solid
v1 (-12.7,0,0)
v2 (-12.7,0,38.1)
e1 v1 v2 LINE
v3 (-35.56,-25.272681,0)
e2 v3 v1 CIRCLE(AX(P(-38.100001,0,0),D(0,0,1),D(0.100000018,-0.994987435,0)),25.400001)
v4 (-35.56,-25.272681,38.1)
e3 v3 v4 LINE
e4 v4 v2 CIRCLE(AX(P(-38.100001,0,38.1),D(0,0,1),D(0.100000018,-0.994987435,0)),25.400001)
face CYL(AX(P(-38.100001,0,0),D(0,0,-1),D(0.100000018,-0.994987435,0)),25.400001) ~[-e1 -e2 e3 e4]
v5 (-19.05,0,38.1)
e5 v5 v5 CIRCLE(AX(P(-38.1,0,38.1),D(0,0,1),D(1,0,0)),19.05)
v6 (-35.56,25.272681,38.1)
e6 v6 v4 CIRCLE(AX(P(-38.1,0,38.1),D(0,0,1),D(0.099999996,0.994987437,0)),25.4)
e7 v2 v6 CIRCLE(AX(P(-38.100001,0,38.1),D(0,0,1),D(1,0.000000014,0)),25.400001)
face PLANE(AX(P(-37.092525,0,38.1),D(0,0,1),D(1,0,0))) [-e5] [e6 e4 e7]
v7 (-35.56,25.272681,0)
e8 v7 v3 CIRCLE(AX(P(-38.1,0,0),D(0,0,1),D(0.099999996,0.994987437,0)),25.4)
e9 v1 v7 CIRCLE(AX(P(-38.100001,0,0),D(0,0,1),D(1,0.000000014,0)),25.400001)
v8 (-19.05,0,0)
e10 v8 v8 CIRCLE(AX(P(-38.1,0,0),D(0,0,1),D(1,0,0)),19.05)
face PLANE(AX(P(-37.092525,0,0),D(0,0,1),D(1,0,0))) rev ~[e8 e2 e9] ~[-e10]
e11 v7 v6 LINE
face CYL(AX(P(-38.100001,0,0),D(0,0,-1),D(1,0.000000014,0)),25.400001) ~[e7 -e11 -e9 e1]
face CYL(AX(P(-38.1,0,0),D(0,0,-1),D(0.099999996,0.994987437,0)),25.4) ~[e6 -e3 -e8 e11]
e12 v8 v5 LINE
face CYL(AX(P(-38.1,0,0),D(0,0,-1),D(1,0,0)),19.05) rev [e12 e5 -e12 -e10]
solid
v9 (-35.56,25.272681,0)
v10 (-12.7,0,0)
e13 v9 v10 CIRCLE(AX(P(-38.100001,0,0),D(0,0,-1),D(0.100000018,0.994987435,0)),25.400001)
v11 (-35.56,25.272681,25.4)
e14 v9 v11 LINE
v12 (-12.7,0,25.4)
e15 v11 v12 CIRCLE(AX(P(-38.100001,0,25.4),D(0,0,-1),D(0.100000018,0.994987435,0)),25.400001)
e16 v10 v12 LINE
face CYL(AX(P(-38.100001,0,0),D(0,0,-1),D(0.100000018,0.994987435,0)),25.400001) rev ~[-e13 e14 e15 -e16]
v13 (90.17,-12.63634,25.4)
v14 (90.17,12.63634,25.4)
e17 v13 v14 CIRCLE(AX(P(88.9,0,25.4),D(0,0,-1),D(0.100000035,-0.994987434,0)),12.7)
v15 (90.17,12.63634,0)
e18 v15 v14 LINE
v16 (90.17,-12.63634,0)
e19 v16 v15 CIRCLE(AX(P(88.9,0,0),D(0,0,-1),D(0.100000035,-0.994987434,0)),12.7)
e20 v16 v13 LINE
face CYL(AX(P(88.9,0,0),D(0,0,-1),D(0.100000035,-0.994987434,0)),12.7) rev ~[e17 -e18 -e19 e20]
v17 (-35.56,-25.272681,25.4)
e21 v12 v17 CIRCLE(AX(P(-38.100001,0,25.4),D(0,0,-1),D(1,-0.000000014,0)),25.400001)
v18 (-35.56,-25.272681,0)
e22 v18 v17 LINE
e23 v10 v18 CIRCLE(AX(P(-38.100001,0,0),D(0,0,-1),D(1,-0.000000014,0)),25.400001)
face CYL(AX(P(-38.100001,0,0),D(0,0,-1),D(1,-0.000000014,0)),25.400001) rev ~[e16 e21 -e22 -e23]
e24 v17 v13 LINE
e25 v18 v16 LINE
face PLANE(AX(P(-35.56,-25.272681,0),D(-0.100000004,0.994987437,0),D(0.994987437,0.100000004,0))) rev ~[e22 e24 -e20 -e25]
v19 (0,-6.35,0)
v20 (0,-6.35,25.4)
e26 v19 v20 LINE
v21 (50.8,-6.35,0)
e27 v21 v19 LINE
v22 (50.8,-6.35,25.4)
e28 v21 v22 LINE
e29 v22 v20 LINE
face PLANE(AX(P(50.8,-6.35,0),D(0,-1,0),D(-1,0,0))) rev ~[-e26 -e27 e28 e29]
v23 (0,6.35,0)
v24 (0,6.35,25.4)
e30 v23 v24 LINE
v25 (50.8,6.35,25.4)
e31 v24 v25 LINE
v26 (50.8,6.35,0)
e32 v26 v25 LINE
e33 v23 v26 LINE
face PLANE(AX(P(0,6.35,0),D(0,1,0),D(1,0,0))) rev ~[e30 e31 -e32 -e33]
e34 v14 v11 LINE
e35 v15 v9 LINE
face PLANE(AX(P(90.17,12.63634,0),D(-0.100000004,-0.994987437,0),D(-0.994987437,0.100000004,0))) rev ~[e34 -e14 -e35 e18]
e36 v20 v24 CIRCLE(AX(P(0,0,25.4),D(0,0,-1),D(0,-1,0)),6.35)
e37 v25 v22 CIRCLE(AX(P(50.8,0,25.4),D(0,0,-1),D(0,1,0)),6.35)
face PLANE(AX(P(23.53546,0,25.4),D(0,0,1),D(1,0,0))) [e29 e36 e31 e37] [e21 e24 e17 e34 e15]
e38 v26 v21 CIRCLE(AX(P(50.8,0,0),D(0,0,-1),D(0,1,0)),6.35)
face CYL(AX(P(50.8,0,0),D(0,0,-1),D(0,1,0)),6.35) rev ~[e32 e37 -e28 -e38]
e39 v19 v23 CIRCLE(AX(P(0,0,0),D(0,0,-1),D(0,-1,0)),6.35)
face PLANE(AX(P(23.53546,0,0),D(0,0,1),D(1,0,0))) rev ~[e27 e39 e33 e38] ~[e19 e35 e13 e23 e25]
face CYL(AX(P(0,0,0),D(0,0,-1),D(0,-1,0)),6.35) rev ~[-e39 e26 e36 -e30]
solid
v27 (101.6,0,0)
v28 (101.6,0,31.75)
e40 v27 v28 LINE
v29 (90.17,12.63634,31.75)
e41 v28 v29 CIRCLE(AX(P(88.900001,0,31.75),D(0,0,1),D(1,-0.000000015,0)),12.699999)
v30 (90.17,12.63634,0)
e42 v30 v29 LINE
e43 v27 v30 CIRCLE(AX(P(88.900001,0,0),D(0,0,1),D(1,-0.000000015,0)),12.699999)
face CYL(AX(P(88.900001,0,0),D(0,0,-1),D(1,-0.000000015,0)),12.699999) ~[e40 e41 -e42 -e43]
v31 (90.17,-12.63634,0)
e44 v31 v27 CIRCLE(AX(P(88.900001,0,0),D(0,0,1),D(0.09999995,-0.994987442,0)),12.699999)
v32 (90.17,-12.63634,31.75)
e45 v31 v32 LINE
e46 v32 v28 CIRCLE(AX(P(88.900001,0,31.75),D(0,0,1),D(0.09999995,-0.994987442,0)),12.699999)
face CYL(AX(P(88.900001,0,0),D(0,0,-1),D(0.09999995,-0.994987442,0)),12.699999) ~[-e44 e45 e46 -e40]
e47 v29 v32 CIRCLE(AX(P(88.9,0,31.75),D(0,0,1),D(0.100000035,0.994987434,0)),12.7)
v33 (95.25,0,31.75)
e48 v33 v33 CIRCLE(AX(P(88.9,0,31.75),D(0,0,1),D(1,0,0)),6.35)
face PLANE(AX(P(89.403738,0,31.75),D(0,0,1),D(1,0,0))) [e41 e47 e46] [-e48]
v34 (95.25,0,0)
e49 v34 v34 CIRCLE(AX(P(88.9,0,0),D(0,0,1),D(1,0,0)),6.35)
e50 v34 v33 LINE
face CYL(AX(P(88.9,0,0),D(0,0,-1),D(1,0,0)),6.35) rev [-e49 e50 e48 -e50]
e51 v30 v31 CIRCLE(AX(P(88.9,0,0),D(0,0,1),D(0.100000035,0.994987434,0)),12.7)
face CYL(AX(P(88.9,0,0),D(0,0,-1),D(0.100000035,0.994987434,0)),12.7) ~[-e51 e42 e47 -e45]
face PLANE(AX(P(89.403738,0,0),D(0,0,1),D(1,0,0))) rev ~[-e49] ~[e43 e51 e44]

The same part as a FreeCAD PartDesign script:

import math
import FreeCAD as App
import Part
import Sketcher

V = App.Vector
Q = App.Units.Quantity

doc = App.newDocument("Part")
params = doc.addObject("Spreadsheet::Sheet", "Params")
for row, (alias, value) in enumerate([
    ("sketch1_radius", "1 in"),
    ("sketch1_diameter", "1.5 in"),
    ("pad1_length", "1.5 in"),
    ("sketch2_diameter", "0.5 in"),
    ("sketch2_radius", "0.5 in"),
    ("pad2_length", "1.25 in"),
    ("sketch3_radius", "1 in"),
    ("sketch3_radius2", "0.5 in"),
    ("sketch3_width", "2 in"),
    ("sketch3_radius3", "0.25 in"),
    ("pad3_length", "1 in"),
], start=1):
    params.set(f"A{row}", alias)
    params.set(f"B{row}", "=" + value)
    params.setAlias(f"B{row}", alias)

body = doc.addObject("PartDesign::Body", "Body")

# Sketch on XY plane
sketch1 = doc.addObject("Sketcher::SketchObject", "Sketch")
body.addObject(sketch1)
sketch1.AttachmentSupport = (doc.XY_Plane, [""])
sketch1.MapMode = "FlatFace"
sketch1.addGeometry(Part.ArcOfCircle(Part.Circle(V(-38, 0, 0), V(0, 0, 1), 25), math.radians(-84), math.radians(0)), False)
sketch1.addGeometry(Part.ArcOfCircle(Part.Circle(V(-38, 0, 0), V(0, 0, 1), 25), math.radians(0), math.radians(84)), False)
sketch1.addGeometry(Part.ArcOfCircle(Part.Circle(V(-38, 0, 0), V(0, 0, 1), 25), math.radians(84), math.radians(276)), False)
sketch1.addGeometry(Part.Circle(V(-38, 0, 0), V(0, 0, 1), 19), False)
sketch1.addConstraint(Sketcher.Constraint("Tangent", 0, 2, 1, 1))
sketch1.addConstraint(Sketcher.Constraint("Tangent", 1, 2, 2, 1))
sketch1.addConstraint(Sketcher.Constraint("Tangent", 2, 2, 0, 1))
sketch1.addConstraint(Sketcher.Constraint("Coincident", 3, 3, 0, 3))
sketch1.addConstraint(Sketcher.Constraint("Symmetric", 1, 2, 2, 2, -1))
sketch1.addConstraint(Sketcher.Constraint("PointOnObject", 0, 2, -1))
sketch1.addConstraint(Sketcher.Constraint("Radius", 0, Q("1 in")))
sketch1.addConstraint(Sketcher.Constraint("Diameter", 3, Q("1.5 in")))
sketch1.addConstraint(Sketcher.Constraint("DistanceX", 0, 3, -1, 1, Q("1.5 in")))
sketch1.addConstraint(Sketcher.Constraint("DistanceX", 1, 2, -1, 1, Q("1.4 in")))
sketch1.setExpression("Constraints[6]", "Params.sketch1_radius")
sketch1.setExpression("Constraints[7]", "Params.sketch1_diameter")
pad1 = doc.addObject("PartDesign::Pad", "Pad")
body.addObject(pad1)
pad1.Profile = sketch1
pad1.setExpression("Length", "Params.pad1_length")
body2 = doc.addObject("PartDesign::Body", "Body001")

# Sketch on XY plane
sketch2 = doc.addObject("Sketcher::SketchObject", "Sketch001")
body2.addObject(sketch2)
sketch2.AttachmentSupport = (doc.getObject("XY_Plane001"), [""])
sketch2.MapMode = "FlatFace"
sketch2.addGeometry(Part.ArcOfCircle(Part.Circle(V(89, 0, 0), V(0, 0, 1), 13), math.radians(0), math.radians(84)), False)
sketch2.addGeometry(Part.ArcOfCircle(Part.Circle(V(89, 0, 0), V(0, 0, 1), 13), math.radians(84), math.radians(276)), False)
sketch2.addGeometry(Part.ArcOfCircle(Part.Circle(V(89, 0, 0), V(0, 0, 1), 13), math.radians(-84), math.radians(0)), False)
sketch2.addGeometry(Part.Circle(V(89, 0, 0), V(0, 0, 1), 6), False)
sketch2.addConstraint(Sketcher.Constraint("Tangent", 0, 2, 1, 1))
sketch2.addConstraint(Sketcher.Constraint("Tangent", 1, 2, 2, 1))
sketch2.addConstraint(Sketcher.Constraint("Tangent", 2, 2, 0, 1))
sketch2.addConstraint(Sketcher.Constraint("Coincident", 3, 3, 0, 3))
sketch2.addConstraint(Sketcher.Constraint("Symmetric", 0, 2, 1, 2, -1))
sketch2.addConstraint(Sketcher.Constraint("PointOnObject", 2, 2, -1))
sketch2.addConstraint(Sketcher.Constraint("Diameter", 3, Q("0.5 in")))
sketch2.addConstraint(Sketcher.Constraint("Radius", 0, Q("0.5 in")))
sketch2.addConstraint(Sketcher.Constraint("DistanceX", -1, 1, 2, 2, Q("4 in")))
sketch2.addConstraint(Sketcher.Constraint("DistanceX", -1, 1, 0, 2, Q("3.55 in")))
sketch2.setExpression("Constraints[6]", "Params.sketch2_diameter")
sketch2.setExpression("Constraints[7]", "Params.sketch2_radius")
pad2 = doc.addObject("PartDesign::Pad", "Pad001")
body2.addObject(pad2)
pad2.Profile = sketch2
pad2.setExpression("Length", "Params.pad2_length")
body3 = doc.addObject("PartDesign::Body", "Body002")

# Sketch on XY plane
sketch3 = doc.addObject("Sketcher::SketchObject", "Sketch002")
body3.addObject(sketch3)
sketch3.AttachmentSupport = (doc.getObject("XY_Plane002"), [""])
sketch3.MapMode = "FlatFace"
sketch3.addGeometry(Part.ArcOfCircle(Part.Circle(V(-38, 0, 0), V(0, 0, 1), 25), math.radians(0), math.radians(84)), False)
sketch3.addGeometry(Part.ArcOfCircle(Part.Circle(V(-38, 0, 0), V(0, 0, 1), 25), math.radians(-84), math.radians(0)), False)
sketch3.addGeometry(Part.LineSegment(V(-36, -25, 0), V(90, -13, 0)), False)
sketch3.addGeometry(Part.ArcOfCircle(Part.Circle(V(89, 0, 0), V(0, 0, 1), 13), math.radians(84), math.radians(276)), False)
sketch3.addGeometry(Part.LineSegment(V(90, 13, 0), V(-36, 25, 0)), False)
sketch3.addGeometry(Part.LineSegment(V(51, -6, 0), V(0, -6, 0)), False)
sketch3.addGeometry(Part.ArcOfCircle(Part.Circle(V(0, 0, 0), V(0, 0, 1), 6), math.radians(90), math.radians(270)), False)
sketch3.addGeometry(Part.LineSegment(V(0, 6, 0), V(51, 6, 0)), False)
sketch3.addGeometry(Part.ArcOfCircle(Part.Circle(V(51, 0, 0), V(0, 0, 1), 6), math.radians(-90), math.radians(90)), False)
sketch3.addConstraint(Sketcher.Constraint("Tangent", 0, 1, 1, 2))
sketch3.addConstraint(Sketcher.Constraint("Tangent", 1, 1, 2, 1))
sketch3.addConstraint(Sketcher.Constraint("Tangent", 2, 2, 3, 2))
sketch3.addConstraint(Sketcher.Constraint("Tangent", 3, 1, 4, 1))
sketch3.addConstraint(Sketcher.Constraint("Tangent", 4, 2, 0, 2))
sketch3.addConstraint(Sketcher.Constraint("Tangent", 5, 2, 6, 2))
sketch3.addConstraint(Sketcher.Constraint("Tangent", 6, 1, 7, 1))
sketch3.addConstraint(Sketcher.Constraint("Tangent", 7, 2, 8, 2))
sketch3.addConstraint(Sketcher.Constraint("Tangent", 8, 1, 5, 1))
sketch3.addConstraint(Sketcher.Constraint("Horizontal", 5))
sketch3.addConstraint(Sketcher.Constraint("Horizontal", 7))
sketch3.addConstraint(Sketcher.Constraint("Coincident", 6, 3, -1, 1))
sketch3.addConstraint(Sketcher.Constraint("Equal", 0, 1))
sketch3.addConstraint(Sketcher.Constraint("Symmetric", 2, 2, 3, 1, -1))
sketch3.addConstraint(Sketcher.Constraint("PointOnObject", 0, 1, -1))
sketch3.addConstraint(Sketcher.Constraint("Radius", 0, Q("1 in")))
sketch3.addConstraint(Sketcher.Constraint("Radius", 3, Q("0.5 in")))
sketch3.addConstraint(Sketcher.Constraint("DistanceX", 5, 2, 5, 1, Q("2 in")))
sketch3.addConstraint(Sketcher.Constraint("Radius", 6, Q("0.25 in")))
sketch3.addConstraint(Sketcher.Constraint("DistanceX", 0, 3, 3, 3, Q("5 in")))
sketch3.addConstraint(Sketcher.Constraint("DistanceX", 0, 3, -1, 1, Q("1.5 in")))
sketch3.setExpression("Constraints[15]", "Params.sketch3_radius")
sketch3.setExpression("Constraints[16]", "Params.sketch3_radius2")
sketch3.setExpression("Constraints[17]", "Params.sketch3_width")
sketch3.setExpression("Constraints[18]", "Params.sketch3_radius3")
pad3 = doc.addObject("PartDesign::Pad", "Pad002")
body3.addObject(pad3)
pad3.Profile = sketch3
pad3.setExpression("Length", "Params.pad3_length")

doc.recompute()
